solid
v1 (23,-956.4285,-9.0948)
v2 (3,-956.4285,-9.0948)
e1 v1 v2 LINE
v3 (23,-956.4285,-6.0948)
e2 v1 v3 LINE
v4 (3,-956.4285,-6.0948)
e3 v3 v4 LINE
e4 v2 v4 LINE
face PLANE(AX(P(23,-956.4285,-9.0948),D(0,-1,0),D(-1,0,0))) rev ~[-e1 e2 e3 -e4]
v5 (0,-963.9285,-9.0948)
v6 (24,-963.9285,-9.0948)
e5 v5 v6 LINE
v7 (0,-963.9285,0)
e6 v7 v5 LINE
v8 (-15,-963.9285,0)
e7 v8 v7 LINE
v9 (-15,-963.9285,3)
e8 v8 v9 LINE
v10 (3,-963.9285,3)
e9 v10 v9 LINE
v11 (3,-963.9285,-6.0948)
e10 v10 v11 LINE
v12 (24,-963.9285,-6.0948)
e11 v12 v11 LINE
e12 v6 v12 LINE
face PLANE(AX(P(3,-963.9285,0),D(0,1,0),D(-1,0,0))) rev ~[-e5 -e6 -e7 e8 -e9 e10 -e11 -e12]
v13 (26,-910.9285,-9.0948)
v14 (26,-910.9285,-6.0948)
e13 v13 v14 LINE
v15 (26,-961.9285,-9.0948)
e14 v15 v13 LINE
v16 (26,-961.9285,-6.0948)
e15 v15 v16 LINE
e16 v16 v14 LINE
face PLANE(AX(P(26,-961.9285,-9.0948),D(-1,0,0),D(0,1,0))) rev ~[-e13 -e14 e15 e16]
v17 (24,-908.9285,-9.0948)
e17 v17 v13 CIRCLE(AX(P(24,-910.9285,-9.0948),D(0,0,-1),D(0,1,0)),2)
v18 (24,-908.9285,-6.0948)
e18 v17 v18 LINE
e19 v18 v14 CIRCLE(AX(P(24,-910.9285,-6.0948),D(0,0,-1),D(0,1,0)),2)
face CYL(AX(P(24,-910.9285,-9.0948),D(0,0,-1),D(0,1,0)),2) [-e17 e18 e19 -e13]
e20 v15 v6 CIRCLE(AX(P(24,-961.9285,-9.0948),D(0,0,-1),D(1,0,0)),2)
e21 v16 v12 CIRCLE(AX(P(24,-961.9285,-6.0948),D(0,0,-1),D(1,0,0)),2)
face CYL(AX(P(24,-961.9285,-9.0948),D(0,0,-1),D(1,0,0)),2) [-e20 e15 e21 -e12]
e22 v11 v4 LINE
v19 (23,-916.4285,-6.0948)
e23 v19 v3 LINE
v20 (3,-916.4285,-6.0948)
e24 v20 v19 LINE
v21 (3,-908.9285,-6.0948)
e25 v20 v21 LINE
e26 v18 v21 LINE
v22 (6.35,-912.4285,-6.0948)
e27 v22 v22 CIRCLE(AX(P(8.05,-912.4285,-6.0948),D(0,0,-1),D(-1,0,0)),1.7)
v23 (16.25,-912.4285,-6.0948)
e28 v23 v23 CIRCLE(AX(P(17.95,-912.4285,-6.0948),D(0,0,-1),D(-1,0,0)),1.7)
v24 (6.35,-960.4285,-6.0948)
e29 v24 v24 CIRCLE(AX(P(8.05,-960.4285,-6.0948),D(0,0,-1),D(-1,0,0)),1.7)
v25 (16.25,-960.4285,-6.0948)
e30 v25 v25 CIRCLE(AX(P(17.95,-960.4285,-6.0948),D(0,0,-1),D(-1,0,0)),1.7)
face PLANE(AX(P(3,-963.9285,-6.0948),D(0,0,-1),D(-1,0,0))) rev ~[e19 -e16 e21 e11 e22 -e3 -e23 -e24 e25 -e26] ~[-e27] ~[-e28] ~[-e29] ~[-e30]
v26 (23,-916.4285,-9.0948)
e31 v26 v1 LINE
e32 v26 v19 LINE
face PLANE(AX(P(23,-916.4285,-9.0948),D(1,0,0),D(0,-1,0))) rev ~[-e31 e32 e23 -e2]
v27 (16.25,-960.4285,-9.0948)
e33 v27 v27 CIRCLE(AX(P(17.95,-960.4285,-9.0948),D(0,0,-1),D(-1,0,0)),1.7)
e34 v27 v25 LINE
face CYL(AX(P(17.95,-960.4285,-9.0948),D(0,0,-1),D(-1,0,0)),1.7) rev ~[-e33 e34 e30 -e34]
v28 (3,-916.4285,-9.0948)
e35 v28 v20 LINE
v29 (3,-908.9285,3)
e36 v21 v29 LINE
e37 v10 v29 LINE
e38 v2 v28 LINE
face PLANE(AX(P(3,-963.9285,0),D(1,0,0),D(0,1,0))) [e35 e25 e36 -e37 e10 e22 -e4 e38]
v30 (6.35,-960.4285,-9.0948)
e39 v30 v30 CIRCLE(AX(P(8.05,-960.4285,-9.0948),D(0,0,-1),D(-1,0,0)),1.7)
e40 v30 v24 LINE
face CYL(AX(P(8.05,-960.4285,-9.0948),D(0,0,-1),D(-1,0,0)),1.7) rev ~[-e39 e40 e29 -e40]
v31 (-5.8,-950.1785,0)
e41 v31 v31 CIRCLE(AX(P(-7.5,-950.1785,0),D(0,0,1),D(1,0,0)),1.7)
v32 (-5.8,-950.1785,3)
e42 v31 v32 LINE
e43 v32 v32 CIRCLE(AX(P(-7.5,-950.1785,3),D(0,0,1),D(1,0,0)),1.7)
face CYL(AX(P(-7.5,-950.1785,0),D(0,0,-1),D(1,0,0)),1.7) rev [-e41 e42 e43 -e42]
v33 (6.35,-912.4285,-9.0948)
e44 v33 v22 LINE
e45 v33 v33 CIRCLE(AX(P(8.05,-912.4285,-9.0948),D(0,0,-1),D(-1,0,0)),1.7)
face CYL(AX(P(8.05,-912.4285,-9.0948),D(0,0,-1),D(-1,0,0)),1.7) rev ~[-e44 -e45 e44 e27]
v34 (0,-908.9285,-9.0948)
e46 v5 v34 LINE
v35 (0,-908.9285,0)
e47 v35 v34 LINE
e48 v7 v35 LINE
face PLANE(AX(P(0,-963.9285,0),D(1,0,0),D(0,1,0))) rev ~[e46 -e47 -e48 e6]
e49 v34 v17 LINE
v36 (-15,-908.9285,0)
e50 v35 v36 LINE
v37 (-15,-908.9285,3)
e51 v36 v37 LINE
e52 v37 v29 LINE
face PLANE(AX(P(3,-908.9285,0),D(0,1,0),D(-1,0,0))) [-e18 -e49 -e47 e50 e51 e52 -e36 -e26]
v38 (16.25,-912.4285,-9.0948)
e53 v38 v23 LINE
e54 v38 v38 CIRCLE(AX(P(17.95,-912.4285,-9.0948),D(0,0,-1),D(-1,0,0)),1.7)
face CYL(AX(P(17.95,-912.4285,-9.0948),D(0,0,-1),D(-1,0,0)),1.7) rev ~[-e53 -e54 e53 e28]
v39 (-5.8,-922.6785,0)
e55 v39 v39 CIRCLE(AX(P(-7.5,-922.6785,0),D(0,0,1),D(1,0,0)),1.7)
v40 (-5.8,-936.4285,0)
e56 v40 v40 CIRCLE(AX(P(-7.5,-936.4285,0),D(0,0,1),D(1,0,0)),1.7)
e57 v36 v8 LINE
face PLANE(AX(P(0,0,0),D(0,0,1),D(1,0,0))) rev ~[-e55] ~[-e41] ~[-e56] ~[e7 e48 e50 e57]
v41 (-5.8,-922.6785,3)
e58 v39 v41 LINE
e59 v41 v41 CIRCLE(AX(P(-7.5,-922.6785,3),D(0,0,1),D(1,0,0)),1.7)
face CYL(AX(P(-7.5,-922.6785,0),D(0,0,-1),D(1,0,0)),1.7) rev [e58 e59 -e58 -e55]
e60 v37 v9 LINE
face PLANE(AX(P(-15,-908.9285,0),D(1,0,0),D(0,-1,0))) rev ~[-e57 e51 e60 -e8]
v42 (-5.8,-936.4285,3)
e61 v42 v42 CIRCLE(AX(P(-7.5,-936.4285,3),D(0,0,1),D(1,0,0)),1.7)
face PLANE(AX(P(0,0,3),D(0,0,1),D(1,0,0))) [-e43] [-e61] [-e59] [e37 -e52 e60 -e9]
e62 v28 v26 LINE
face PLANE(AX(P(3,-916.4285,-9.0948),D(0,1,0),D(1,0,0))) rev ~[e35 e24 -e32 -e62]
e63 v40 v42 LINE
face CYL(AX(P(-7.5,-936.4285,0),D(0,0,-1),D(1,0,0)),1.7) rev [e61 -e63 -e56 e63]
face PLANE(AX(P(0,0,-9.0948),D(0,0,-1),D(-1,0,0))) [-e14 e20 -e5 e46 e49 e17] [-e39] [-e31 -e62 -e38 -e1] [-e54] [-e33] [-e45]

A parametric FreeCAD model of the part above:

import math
import FreeCAD as App
import Part
import Sketcher

V = App.Vector
Q = App.Units.Quantity

doc = App.newDocument("Part")
body = doc.addObject("PartDesign::Body", "Body")

# Sketch on XY plane
sketch1 = doc.addObject("Sketcher::SketchObject", "Sketch")
body.addObject(sketch1)
sketch1.AttachmentSupport = (doc.XY_Plane, [""])
sketch1.MapMode = "FlatFace"
sketch1.addGeometry([
    Part.LineSegment(V(-15, -908.9, 0), V(-15, -963.9, 0)),  # 0
    Part.LineSegment(V(-15, -963.9, 0), V(3, -963.9, 0)),  # 1
    Part.LineSegment(V(3, -963.9, 0), V(3, -908.9, 0)),  # 2
    Part.LineSegment(V(3, -908.9, 0), V(-15, -908.9, 0)),  # 3
    Part.Circle(V(-7.5, -950.2, 0), V(0, 0, 1), 1.7),  # 4
    Part.Circle(V(-7.5, -936.4, 0), V(0, 0, 1), 1.7),  # 5
    Part.Circle(V(-7.5, -922.7, 0), V(0, 0, 1), 1.7),  # 6
], False)
sketch1.addConstraint([
    Sketcher.Constraint("Coincident", 0, 2, 1, 1),
    Sketcher.Constraint("Coincident", 1, 2, 2, 1),
    Sketcher.Constraint("Coincident", 2, 2, 3, 1),
    Sketcher.Constraint("Coincident", 3, 2, 0, 1),
    Sketcher.Constraint("Vertical", 0),
    Sketcher.Constraint("Horizontal", 1),
    Sketcher.Constraint("Vertical", 2),
    Sketcher.Constraint("Horizontal", 3),
    Sketcher.Constraint("Equal", 4, 5),
    Sketcher.Constraint("Equal", 5, 6),
    Sketcher.Constraint("Vertical", 4, 3, 5, 3),
    Sketcher.Constraint("Vertical", 5, 3, 6, 3),
    Sketcher.Constraint("Diameter", 4, Q("3.4 mm")),
    Sketcher.Constraint("DistanceY", 0, 2, 0, 1, Q("55 mm")),
    Sketcher.Constraint("DistanceX", -1, 1, 1, 2, Q("3 mm")),
    Sketcher.Constraint("DistanceX", 1, 1, 1, 2, Q("18 mm")),
    Sketcher.Constraint("DistanceY", 4, 3, 5, 3, Q("13.75 mm")),
    Sketcher.Constraint("DistanceY", 5, 3, 6, 3, Q("13.75 mm")),
    Sketcher.Constraint("DistanceY", 0, 2, 4, 3, Q("13.75 mm")),
    Sketcher.Constraint("DistanceX", 4, 3, -1, 1, Q("7.5 mm")),
    Sketcher.Constraint("DistanceY", 4, 3, -1, 1, Q("950.1785 mm")),
])
pad1 = doc.addObject("PartDesign::Pad", "Pad")
body.addObject(pad1)
pad1.Profile = sketch1
pad1.Length = 3

# Sketch on XY plane
sketch2 = doc.addObject("Sketcher::SketchObject", "Sketch001")
body.addObject(sketch2)
sketch2.AttachmentSupport = (doc.XY_Plane, [""])
sketch2.MapMode = "FlatFace"
sketch2.addGeometry([
    Part.LineSegment(V(3, -908.9, 0), V(3, -963.9, 0)),
    Part.LineSegment(V(3, -963.9, 0), V(0, -963.9, 0)),
    Part.LineSegment(V(0, -963.9, 0), V(0, -908.9, 0)),
    Part.LineSegment(V(0, -908.9, 0), V(3, -908.9, 0)),
], False)
sketch2.addConstraint([
    Sketcher.Constraint("Coincident", 0, 2, 1, 1),
    Sketcher.Constraint("Coincident", 1, 2, 2, 1),
    Sketcher.Constraint("Coincident", 2, 2, 3, 1),
    Sketcher.Constraint("Coincident", 3, 2, 0, 1),
    Sketcher.Constraint("Vertical", 0),
    Sketcher.Constraint("Horizontal", 1),
    Sketcher.Constraint("Vertical", 2),
    Sketcher.Constraint("Horizontal", 3),
    Sketcher.Constraint("PointOnObject", 1, 2, -2),
    Sketcher.Constraint("DistanceX", 1, 2, 1, 1, Q("3 mm")),
    Sketcher.Constraint("DistanceY", 0, 2, 0, 1, Q("55 mm")),
    Sketcher.Constraint("DistanceY", 0, 2, -1, 1, Q("963.9285 mm")),
])
pad2 = doc.addObject("PartDesign::Pad", "Pad001")
body.addObject(pad2)
pad2.Profile = sketch2
pad2.Length = 9.0948
pad2.Reversed = True

# Sketch on XY plane
sketch3 = doc.addObject("Sketcher::SketchObject", "Sketch002")
body.addObject(sketch3)
sketch3.AttachmentSupport = (doc.XY_Plane, [""])
sketch3.MapMode = "FlatFace"
sketch3.AttachmentOffset = App.Placement(V(0, 0, -9.0948), App.Rotation())
sketch3.addGeometry([
    Part.LineSegment(V(24, -963.9, 0), V(0, -963.9, 0)),  # 0
    Part.LineSegment(V(0, -963.9, 0), V(0, -908.9, 0)),  # 1
    Part.LineSegment(V(0, -908.9, 0), V(24, -908.9, 0)),  # 2
    Part.ArcOfCircle(Part.Circle(V(24, -910.9, 0), V(0, 0, 1), 2), math.radians(0), math.radians(90)),  # 3
    Part.LineSegment(V(26, -910.9, 0), V(26, -961.9, 0)),  # 4
    Part.ArcOfCircle(Part.Circle(V(24, -961.9, 0), V(0, 0, 1), 2), math.radians(-90), math.radians(0)),  # 5
    Part.LineSegment(V(23, -916.4, 0), V(3, -916.4, 0)),  # 6
    Part.LineSegment(V(3, -916.4, 0), V(3, -956.4, 0)),  # 7
    Part.LineSegment(V(3, -956.4, 0), V(23, -956.4, 0)),  # 8
    Part.LineSegment(V(23, -956.4, 0), V(23, -916.4, 0)),  # 9
    Part.Circle(V(17.9, -960.4, 0), V(0, 0, 1), 1.7),  # 10
    Part.Circle(V(8.1, -960.4, 0), V(0, 0, 1), 1.7),  # 11
    Part.Circle(V(17.9, -912.4, 0), V(0, 0, 1), 1.7),  # 12
    Part.Circle(V(8.1, -912.4, 0), V(0, 0, 1), 1.7),  # 13
], False)
sketch3.addConstraint([
    Sketcher.Constraint("Coincident", 0, 2, 1, 1),
    Sketcher.Constraint("Coincident", 1, 2, 2, 1),
    Sketcher.Constraint("Tangent", 2, 2, 3, 2),
    Sketcher.Constraint("Tangent", 3, 1, 4, 1),
    Sketcher.Constraint("Tangent", 4, 2, 5, 2),
    Sketcher.Constraint("Tangent", 5, 1, 0, 1),
    Sketcher.Constraint("Coincident", 6, 2, 7, 1),
    Sketcher.Constraint("Coincident", 7, 2, 8, 1),
    Sketcher.Constraint("Coincident", 8, 2, 9, 1),
    Sketcher.Constraint("Coincident", 9, 2, 6, 1),
    Sketcher.Constraint("Horizontal", 0),
    Sketcher.Constraint("Vertical", 1),
    Sketcher.Constraint("Horizontal", 2),
    Sketcher.Constraint("Vertical", 4),
    Sketcher.Constraint("Horizontal", 6),
    Sketcher.Constraint("Vertical", 7),
    Sketcher.Constraint("Horizontal", 8),
    Sketcher.Constraint("Vertical", 9),
    Sketcher.Constraint("Equal", 3, 5),
    Sketcher.Constraint("Equal", 10, 11),
    Sketcher.Constraint("Equal", 11, 12),
    Sketcher.Constraint("Equal", 12, 13),
    Sketcher.Constraint("PointOnObject", 0, 2, -2),
    Sketcher.Constraint("Horizontal", 10, 3, 11, 3),
    Sketcher.Constraint("Horizontal", 12, 3, 13, 3),
    Sketcher.Constraint("Vertical", 10, 3, 12, 3),
    Sketcher.Constraint("Vertical", 11, 3, 13, 3),
    Sketcher.Constraint("Radius", 3, Q("2 mm")),
    Sketcher.Constraint("Diameter", 10, Q("3.4 mm")),
    Sketcher.Constraint("DistanceY", 1, 1, 1, 2, Q("55 mm")),
    Sketcher.Constraint("DistanceY", 7, 2, 7, 1, Q("40 mm")),
    Sketcher.Constraint("DistanceX", -1, 1, 3, 1, Q("26 mm")),
    Sketcher.Constraint("DistanceY", 10, 3, 12, 3, Q("48 mm")),
    Sketcher.Constraint("DistanceX", 11, 3, 10, 3, Q("9.9 mm")),
    Sketcher.Constraint("DistanceX", 6, 2, 6, 1, Q("20 mm")),
    Sketcher.Constraint("DistanceX", -1, 1, 6, 2, Q("3 mm")),
    Sketcher.Constraint("DistanceY", 6, 2, 13, 3, Q("4 mm")),
    Sketcher.Constraint("DistanceY", 5, 3, 10, 3, Q("1.5 mm")),
    Sketcher.Constraint("DistanceX", -1, 1, 10, 3, Q("17.95 mm")),
    Sketcher.Constraint("DistanceY", 3, 3, -1, 1, Q("910.9285 mm")),
])
pad3 = doc.addObject("PartDesign::Pad", "Pad002")
body.addObject(pad3)
pad3.Profile = sketch3
pad3.Length = 3

doc.recompute()
